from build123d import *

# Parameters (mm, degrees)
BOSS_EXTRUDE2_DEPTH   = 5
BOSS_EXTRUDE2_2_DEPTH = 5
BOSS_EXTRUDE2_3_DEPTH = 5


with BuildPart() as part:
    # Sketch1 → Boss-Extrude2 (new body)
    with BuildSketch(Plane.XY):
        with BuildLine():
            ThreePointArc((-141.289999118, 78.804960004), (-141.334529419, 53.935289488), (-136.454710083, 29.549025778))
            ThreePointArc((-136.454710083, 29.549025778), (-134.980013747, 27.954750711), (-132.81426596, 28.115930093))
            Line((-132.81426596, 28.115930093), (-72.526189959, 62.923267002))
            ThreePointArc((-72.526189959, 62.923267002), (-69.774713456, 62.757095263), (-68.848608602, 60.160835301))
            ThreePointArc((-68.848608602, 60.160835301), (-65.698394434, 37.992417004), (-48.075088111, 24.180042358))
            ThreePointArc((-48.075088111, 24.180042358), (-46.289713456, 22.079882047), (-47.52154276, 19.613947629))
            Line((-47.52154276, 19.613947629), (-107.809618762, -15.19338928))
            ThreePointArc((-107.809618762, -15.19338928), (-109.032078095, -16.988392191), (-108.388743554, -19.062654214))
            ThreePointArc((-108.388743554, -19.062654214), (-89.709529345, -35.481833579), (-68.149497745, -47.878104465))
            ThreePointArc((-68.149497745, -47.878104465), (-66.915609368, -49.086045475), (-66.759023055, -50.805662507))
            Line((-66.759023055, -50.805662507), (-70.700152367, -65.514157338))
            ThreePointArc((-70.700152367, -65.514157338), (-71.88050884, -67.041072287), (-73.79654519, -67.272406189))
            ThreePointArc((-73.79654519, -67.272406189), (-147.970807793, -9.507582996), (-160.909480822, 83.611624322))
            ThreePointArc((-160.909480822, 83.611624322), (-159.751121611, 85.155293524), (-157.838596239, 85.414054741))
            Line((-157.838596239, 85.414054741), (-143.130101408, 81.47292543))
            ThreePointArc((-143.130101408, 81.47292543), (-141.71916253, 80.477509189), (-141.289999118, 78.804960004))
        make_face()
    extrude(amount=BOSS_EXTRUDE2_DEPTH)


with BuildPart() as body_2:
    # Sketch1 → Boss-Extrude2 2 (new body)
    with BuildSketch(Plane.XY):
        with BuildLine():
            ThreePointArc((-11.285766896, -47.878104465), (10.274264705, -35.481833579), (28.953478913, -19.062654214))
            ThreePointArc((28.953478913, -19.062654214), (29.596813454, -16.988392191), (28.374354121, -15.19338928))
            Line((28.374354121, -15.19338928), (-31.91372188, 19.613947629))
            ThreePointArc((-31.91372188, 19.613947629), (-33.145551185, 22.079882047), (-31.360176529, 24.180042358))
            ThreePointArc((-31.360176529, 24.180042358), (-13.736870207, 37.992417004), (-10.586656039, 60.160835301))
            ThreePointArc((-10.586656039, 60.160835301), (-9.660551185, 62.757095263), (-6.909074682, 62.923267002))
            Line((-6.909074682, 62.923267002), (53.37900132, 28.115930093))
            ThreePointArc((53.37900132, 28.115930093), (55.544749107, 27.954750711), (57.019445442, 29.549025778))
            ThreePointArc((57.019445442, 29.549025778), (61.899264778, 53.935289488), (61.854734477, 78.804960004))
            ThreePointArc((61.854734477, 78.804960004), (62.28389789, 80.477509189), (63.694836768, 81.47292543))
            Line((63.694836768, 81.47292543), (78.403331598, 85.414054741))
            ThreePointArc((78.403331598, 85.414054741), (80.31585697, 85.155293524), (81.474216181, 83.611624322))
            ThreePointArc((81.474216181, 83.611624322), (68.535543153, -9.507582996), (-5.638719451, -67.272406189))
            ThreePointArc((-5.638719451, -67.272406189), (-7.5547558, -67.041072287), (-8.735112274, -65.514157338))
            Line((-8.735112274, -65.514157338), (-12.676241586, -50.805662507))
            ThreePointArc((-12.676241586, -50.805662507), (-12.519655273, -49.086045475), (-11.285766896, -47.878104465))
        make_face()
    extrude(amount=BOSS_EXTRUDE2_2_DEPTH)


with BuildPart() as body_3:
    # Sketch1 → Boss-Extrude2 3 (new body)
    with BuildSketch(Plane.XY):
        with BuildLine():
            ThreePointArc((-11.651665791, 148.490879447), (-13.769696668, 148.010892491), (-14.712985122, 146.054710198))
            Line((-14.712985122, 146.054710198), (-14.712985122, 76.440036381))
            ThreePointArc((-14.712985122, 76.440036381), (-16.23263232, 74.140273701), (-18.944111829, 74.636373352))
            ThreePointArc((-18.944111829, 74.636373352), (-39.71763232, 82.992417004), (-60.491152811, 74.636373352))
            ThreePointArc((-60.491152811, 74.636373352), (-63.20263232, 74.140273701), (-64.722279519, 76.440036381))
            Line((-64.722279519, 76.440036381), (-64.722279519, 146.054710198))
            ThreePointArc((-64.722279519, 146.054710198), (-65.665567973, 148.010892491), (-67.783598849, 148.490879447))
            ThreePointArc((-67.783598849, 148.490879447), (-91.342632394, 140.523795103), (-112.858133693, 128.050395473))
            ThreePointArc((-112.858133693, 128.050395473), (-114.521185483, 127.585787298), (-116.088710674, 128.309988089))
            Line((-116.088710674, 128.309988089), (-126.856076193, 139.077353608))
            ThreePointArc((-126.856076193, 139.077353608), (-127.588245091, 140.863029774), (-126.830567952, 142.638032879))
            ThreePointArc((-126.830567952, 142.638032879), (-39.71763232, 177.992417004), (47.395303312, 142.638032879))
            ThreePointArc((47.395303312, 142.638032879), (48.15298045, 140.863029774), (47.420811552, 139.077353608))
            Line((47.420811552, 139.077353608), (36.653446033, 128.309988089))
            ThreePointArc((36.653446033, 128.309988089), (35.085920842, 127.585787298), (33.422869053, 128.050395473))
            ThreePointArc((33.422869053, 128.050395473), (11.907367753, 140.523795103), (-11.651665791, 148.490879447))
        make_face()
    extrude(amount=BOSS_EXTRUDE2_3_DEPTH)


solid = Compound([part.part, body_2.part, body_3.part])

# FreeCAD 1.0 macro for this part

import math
import FreeCAD as App
import Part
import Sketcher
from FreeCAD import Vector
Q = App.Units.Quantity

doc = App.newDocument("Part")
body = doc.addObject("PartDesign::Body", "Body")

sketch1 = body.newObject("Sketcher::SketchObject", "Sketch")
sketch1.AttachmentSupport = (doc.getObject("XY_Plane"), [""])
sketch1.MapMode = "FlatFace"
sketch1.addGeometry([
    Part.ArcOfCircle(Part.Circle(Vector(-16.932504, 66.147417, 0), Vector(0, 0, 1), 125), math.radians(174.188249), math.radians(197.024891)),
    Part.ArcOfCircle(Part.Circle(Vector(-143.777149, 79.058111, 0), Vector(0, 0, 1), 2.5), math.radians(-5.811751), math.radians(75)),
    Part.LineSegment(Vector(-143.130101, 81.472925, 0), Vector(-157.838596, 85.414055, 0)),
    Part.ArcOfCircle(Part.Circle(Vector(-158.485644, 82.99924, 0), Vector(0, 0, 1), 2.5), math.radians(75), math.radians(165.820905)),
    Part.ArcOfCircle(Part.Circle(Vector(-39.717632, 52.992417, 0), Vector(0, 0, 1), 125), math.radians(165.820905), math.radians(254.179095)),
    Part.ArcOfCircle(Part.Circle(Vector(-73.114967, -64.86711, 0), Vector(0, 0, 1), 2.5), math.radians(-105.820905), math.radians(-15)),
    Part.LineSegment(Vector(-70.700152, -65.514157, 0), Vector(-66.759023, -50.805663, 0)),
    Part.ArcOfCircle(Part.Circle(Vector(-69.173838, -50.158615, 0), Vector(0, 0, 1), 2.5), math.radians(-15), math.radians(65.811751)),
    Part.ArcOfCircle(Part.Circle(Vector(-16.932504, 66.147417, 0), Vector(0, 0, 1), 125), math.radians(-137.024891), math.radians(-114.188249)),
    Part.ArcOfCircle(Part.Circle(Vector(-106.559619, -17.358453, 0), Vector(0, 0, 1), 2.5), math.radians(120), math.radians(222.975109)),
    Part.LineSegment(Vector(-107.809619, -15.193389, 0), Vector(-47.521543, 19.613948, 0)),
    Part.ArcOfCircle(Part.Circle(Vector(-48.771543, 21.779011, 0), Vector(0, 0, 1), 2.5), math.radians(-60), math.radians(73.824416)),
    Part.ArcOfCircle(Part.Circle(Vector(-39.717632, 52.992417, 0), Vector(0, 0, 1), 30), math.radians(166.175584), math.radians(253.824416)),
    Part.ArcOfCircle(Part.Circle(Vector(-71.27619, 60.758203, 0), Vector(0, 0, 1), 2.5), math.radians(-13.824416), math.radians(120)),
    Part.LineSegment(Vector(-72.52619, 62.923267, 0), Vector(-132.814266, 28.11593, 0)),
    Part.ArcOfCircle(Part.Circle(Vector(-134.064266, 30.280994, 0), Vector(0, 0, 1), 2.5), math.radians(-162.975109), math.radians(-60)),
], False)
sketch1.addConstraint([
    Sketcher.Constraint("Tangent", 0, 1, 1, 1),
    Sketcher.Constraint("Tangent", 1, 2, 2, 1),
    Sketcher.Constraint("Tangent", 2, 2, 3, 1),
    Sketcher.Constraint("Tangent", 3, 2, 4, 1),
    Sketcher.Constraint("Tangent", 4, 2, 5, 1),
    Sketcher.Constraint("Tangent", 5, 2, 6, 1),
    Sketcher.Constraint("Tangent", 6, 2, 7, 1),
    Sketcher.Constraint("Tangent", 7, 2, 8, 2),
    Sketcher.Constraint("Tangent", 8, 1, 9, 2),
    Sketcher.Constraint("Tangent", 9, 1, 10, 1),
    Sketcher.Constraint("Tangent", 10, 2, 11, 1),
    Sketcher.Constraint("Tangent", 11, 2, 12, 2),
    Sketcher.Constraint("Tangent", 12, 1, 13, 1),
    Sketcher.Constraint("Tangent", 13, 2, 14, 1),
    Sketcher.Constraint("Tangent", 14, 2, 15, 2),
    Sketcher.Constraint("Tangent", 15, 1, 0, 2),
    Sketcher.Constraint("Coincident", 8, 3, 0, 3),
    Sketcher.Constraint("Coincident", 12, 3, 4, 3),
    Sketcher.Constraint("Equal", 1, 3),
    Sketcher.Constraint("Equal", 0, 4),
    Sketcher.Constraint("Equal", 3, 5),
    Sketcher.Constraint("Equal", 5, 7),
    Sketcher.Constraint("Equal", 4, 8),
    Sketcher.Constraint("Equal", 7, 9),
    Sketcher.Constraint("Equal", 9, 11),
    Sketcher.Constraint("Equal", 11, 13),
    Sketcher.Constraint("Equal", 13, 15),
    Sketcher.Constraint("Perpendicular", 2, 6),
    Sketcher.Constraint("Parallel", 10, 14),
    Sketcher.Constraint("Equal", 2, 6),
    Sketcher.Constraint("Equal", 10, 14),
    Sketcher.Constraint("Radius", 0, 125.0),
    Sketcher.Constraint("Radius", 12, 30.0),
    Sketcher.Constraint("Radius", 1, 2.5),
    Sketcher.Constraint("Angle", 2, Q("165 deg")),
    Sketcher.Constraint("Angle", 10, Q("30 deg")),
    Sketcher.Constraint("DistanceX", 0, 1, -1, 1, 141.289999),
    Sketcher.Constraint("DistanceY", 4, 3, 0, 3, 13.155),
    Sketcher.Constraint("DistanceY", 1, 2, 3, 2, 2.138699),
    Sketcher.Constraint("DistanceY", 4, 2, 15, 3, 97.5534),
    Sketcher.Constraint("DistanceX", 13, 3, 11, 2, 23.201102),
    Sketcher.Constraint("DistanceY", -1, 1, 1, 3, 79.058111),
])
pad1 = body.newObject("PartDesign::Pad", "Pad")
pad1.Profile = sketch1
pad1.Length = 5
body2 = doc.addObject("PartDesign::Body", "Body001")

sketch2 = body2.newObject("Sketcher::SketchObject", "Sketch001")
sketch2.AttachmentSupport = (doc.getObject("XY_Plane001"), [""])
sketch2.MapMode = "FlatFace"
sketch2.addGeometry([
    Part.ArcOfCircle(Part.Circle(Vector(-62.502761, 66.147417, 0), Vector(0, 0, 1), 125), math.radians(-65.811751), math.radians(-42.975109)),
    Part.ArcOfCircle(Part.Circle(Vector(-10.261427, -50.158615, 0), Vector(0, 0, 1), 2.5), math.radians(114.188249), math.radians(195)),
    Part.LineSegment(Vector(-12.676242, -50.805663, 0), Vector(-8.735112, -65.514157, 0)),
    Part.ArcOfCircle(Part.Circle(Vector(-6.320298, -64.86711, 0), Vector(0, 0, 1), 2.5), math.radians(-165), math.radians(-74.179095)),
    Part.ArcOfCircle(Part.Circle(Vector(-39.717632, 52.992417, 0), Vector(0, 0, 1), 125), math.radians(-74.179095), math.radians(14.179095)),
    Part.ArcOfCircle(Part.Circle(Vector(79.050379, 82.99924, 0), Vector(0, 0, 1), 2.5), math.radians(14.179095), math.radians(105)),
    Part.LineSegment(Vector(78.403332, 85.414055, 0), Vector(63.694837, 81.472925, 0)),
    Part.ArcOfCircle(Part.Circle(Vector(64.341884, 79.058111, 0), Vector(0, 0, 1), 2.5), math.radians(105), math.radians(185.811751)),
    Part.ArcOfCircle(Part.Circle(Vector(-62.502761, 66.147417, 0), Vector(0, 0, 1), 125), math.radians(-17.024891), math.radians(5.811751)),
    Part.ArcOfCircle(Part.Circle(Vector(54.629001, 30.280994, 0), Vector(0, 0, 1), 2.5), math.radians(-120), math.radians(-17.024891)),
    Part.LineSegment(Vector(53.379001, 28.11593, 0), Vector(-6.909075, 62.923267, 0)),
    Part.ArcOfCircle(Part.Circle(Vector(-8.159075, 60.758203, 0), Vector(0, 0, 1), 2.5), math.radians(60), math.radians(193.824416)),
    Part.ArcOfCircle(Part.Circle(Vector(-39.717632, 52.992417, 0), Vector(0, 0, 1), 30), math.radians(-73.824416), math.radians(13.824416)),
    Part.ArcOfCircle(Part.Circle(Vector(-30.663722, 21.779011, 0), Vector(0, 0, 1), 2.5), math.radians(106.175584), math.radians(240)),
    Part.LineSegment(Vector(-31.913722, 19.613948, 0), Vector(28.374354, -15.193389, 0)),
    Part.ArcOfCircle(Part.Circle(Vector(27.124354, -17.358453, 0), Vector(0, 0, 1), 2.5), math.radians(-42.975109), math.radians(60)),
], False)
sketch2.addConstraint([
    Sketcher.Constraint("Tangent", 0, 1, 1, 1),
    Sketcher.Constraint("Tangent", 1, 2, 2, 1),
    Sketcher.Constraint("Tangent", 2, 2, 3, 1),
    Sketcher.Constraint("Tangent", 3, 2, 4, 1),
    Sketcher.Constraint("Tangent", 4, 2, 5, 1),
    Sketcher.Constraint("Tangent", 5, 2, 6, 1),
    Sketcher.Constraint("Tangent", 6, 2, 7, 1),
    Sketcher.Constraint("Tangent", 7, 2, 8, 2),
    Sketcher.Constraint("Tangent", 8, 1, 9, 2),
    Sketcher.Constraint("Tangent", 9, 1, 10, 1),
    Sketcher.Constraint("Tangent", 10, 2, 11, 1),
    Sketcher.Constraint("Tangent", 11, 2, 12, 2),
    Sketcher.Constraint("Tangent", 12, 1, 13, 1),
    Sketcher.Constraint("Tangent", 13, 2, 14, 1),
    Sketcher.Constraint("Tangent", 14, 2, 15, 2),
    Sketcher.Constraint("Tangent", 15, 1, 0, 2),
    Sketcher.Constraint("Coincident", 8, 3, 0, 3),
    Sketcher.Constraint("Coincident", 12, 3, 4, 3),
    Sketcher.Constraint("Equal", 1, 3),
    Sketcher.Constraint("Equal", 0, 4),
    Sketcher.Constraint("Equal", 3, 5),
    Sketcher.Constraint("Equal", 5, 7),
    Sketcher.Constraint("Equal", 4, 8),
    Sketcher.Constraint("Equal", 7, 9),
    Sketcher.Constraint("Equal", 9, 11),
    Sketcher.Constraint("Equal", 11, 13),
    Sketcher.Constraint("Equal", 13, 15),
    Sketcher.Constraint("Perpendicular", 2, 6),
    Sketcher.Constraint("Parallel", 10, 14),
    Sketcher.Constraint("Equal", 2, 6),
    Sketcher.Constraint("Equal", 10, 14),
    Sketcher.Constraint("Radius", 0, 125.0),
    Sketcher.Constraint("Radius", 12, 30.0),
    Sketcher.Constraint("Radius", 1, 2.5),
    Sketcher.Constraint("Angle", 2, Q("-75 deg")),
    Sketcher.Constraint("Angle", 10, Q("150 deg")),
    Sketcher.Constraint("DistanceX", -1, 1, 9, 3, 54.629001),
    Sketcher.Constraint("DistanceY", 4, 3, 0, 3, 13.155),
    Sketcher.Constraint("DistanceX", 3, 3, 9, 3, 60.949299),
    Sketcher.Constraint("DistanceY", 0, 1, 9, 3, 78.159098),
    Sketcher.Constraint("DistanceY", 8, 1, 6, 2, 51.9239),
    Sketcher.Constraint("DistanceY", 3, 3, -1, 1, 64.86711),
])
pad2 = body2.newObject("PartDesign::Pad", "Pad001")
pad2.Profile = sketch2
pad2.Length = 5
body3 = doc.addObject("PartDesign::Body", "Body002")

sketch3 = body3.newObject("Sketcher::SketchObject", "Sketch002")
sketch3.AttachmentSupport = (doc.getObject("XY_Plane002"), [""])
sketch3.MapMode = "FlatFace"
sketch3.addGeometry([
    Part.ArcOfCircle(Part.Circle(Vector(-12.212985, 146.05471, 0), Vector(0, 0, 1), 2.5), math.radians(77.024891), math.radians(180)),
    Part.ArcOfCircle(Part.Circle(Vector(-39.717632, 26.682417, 0), Vector(0, 0, 1), 125), math.radians(54.188249), math.radians(77.024891)),
    Part.ArcOfCircle(Part.Circle(Vector(34.885679, 130.077755, 0), Vector(0, 0, 1), 2.5), math.radians(-125.811751), math.radians(-45)),
    Part.LineSegment(Vector(36.653446, 128.309988, 0), Vector(47.420812, 139.077354, 0)),
    Part.ArcOfCircle(Part.Circle(Vector(45.653045, 140.845121, 0), Vector(0, 0, 1), 2.5), math.radians(-45), math.radians(45.820905)),
    Part.ArcOfCircle(Part.Circle(Vector(-39.717632, 52.992417, 0), Vector(0, 0, 1), 125), math.radians(45.820905), math.radians(134.179095)),
    Part.ArcOfCircle(Part.Circle(Vector(-125.088309, 140.845121, 0), Vector(0, 0, 1), 2.5), math.radians(134.179095), math.radians(225)),
    Part.LineSegment(Vector(-126.856076, 139.077354, 0), Vector(-116.088711, 128.309988, 0)),
    Part.ArcOfCircle(Part.Circle(Vector(-114.320944, 130.077755, 0), Vector(0, 0, 1), 2.5), math.radians(-135), math.radians(-54.188249)),
    Part.ArcOfCircle(Part.Circle(Vector(-39.717632, 26.682417, 0), Vector(0, 0, 1), 125), math.radians(102.975109), math.radians(125.811751)),
    Part.ArcOfCircle(Part.Circle(Vector(-67.22228, 146.05471, 0), Vector(0, 0, 1), 2.5), math.radians(0), math.radians(102.975109)),
    Part.LineSegment(Vector(-64.72228, 146.05471, 0), Vector(-64.72228, 76.440036, 0)),
    Part.ArcOfCircle(Part.Circle(Vector(-62.22228, 76.440036, 0), Vector(0, 0, 1), 2.5), math.radians(-180), math.radians(-46.175584)),
    Part.ArcOfCircle(Part.Circle(Vector(-39.717632, 52.992417, 0), Vector(0, 0, 1), 30), math.radians(46.175584), math.radians(133.824416)),
    Part.ArcOfCircle(Part.Circle(Vector(-17.212985, 76.440036, 0), Vector(0, 0, 1), 2.5), math.radians(-133.824416), math.radians(0)),
    Part.LineSegment(Vector(-14.712985, 76.440036, 0), Vector(-14.712985, 146.05471, 0)),
], False)
sketch3.addConstraint([
    Sketcher.Constraint("Tangent", 0, 1, 1, 2),
    Sketcher.Constraint("Tangent", 1, 1, 2, 1),
    Sketcher.Constraint("Tangent", 2, 2, 3, 1),
    Sketcher.Constraint("Tangent", 3, 2, 4, 1),
    Sketcher.Constraint("Tangent", 4, 2, 5, 1),
    Sketcher.Constraint("Tangent", 5, 2, 6, 1),
    Sketcher.Constraint("Tangent", 6, 2, 7, 1),
    Sketcher.Constraint("Tangent", 7, 2, 8, 1),
    Sketcher.Constraint("Tangent", 8, 2, 9, 2),
    Sketcher.Constraint("Tangent", 9, 1, 10, 2),
    Sketcher.Constraint("Tangent", 10, 1, 11, 1),
    Sketcher.Constraint("Tangent", 11, 2, 12, 1),
    Sketcher.Constraint("Tangent", 12, 2, 13, 2),
    Sketcher.Constraint("Tangent", 13, 1, 14, 1),
    Sketcher.Constraint("Tangent", 14, 2, 15, 1),
    Sketcher.Constraint("Tangent", 15, 2, 0, 2),
    Sketcher.Constraint("Vertical", 11),
    Sketcher.Constraint("Vertical", 15),
    Sketcher.Constraint("Coincident", 9, 3, 1, 3),
    Sketcher.Constraint("Coincident", 13, 3, 5, 3),
    Sketcher.Constraint("Equal", 0, 2),
    Sketcher.Constraint("Equal", 2, 4),
    Sketcher.Constraint("Equal", 1, 5),
    Sketcher.Constraint("Equal", 4, 6),
    Sketcher.Constraint("Equal", 6, 8),
    Sketcher.Constraint("Equal", 5, 9),
    Sketcher.Constraint("Equal", 8, 10),
    Sketcher.Constraint("Equal", 10, 12),
    Sketcher.Constraint("Equal", 12, 14),
    Sketcher.Constraint("Perpendicular", 3, 7),
    Sketcher.Constraint("Horizontal", 4, 3, 6, 3),
    Sketcher.Constraint("Horizontal", 2, 3, 8, 3),
    Sketcher.Constraint("Horizontal", 0, 3, 10, 3),
    Sketcher.Constraint("Horizontal", 12, 3, 14, 3),
    Sketcher.Constraint("Radius", 1, 125.0),
    Sketcher.Constraint("Radius", 13, 30.0),
    Sketcher.Constraint("Radius", 0, 2.5),
    Sketcher.Constraint("DistanceY", 1, 3, 5, 3, 26.31),
    Sketcher.Constraint("DistanceX", 9, 1, -1, 1, 67.783599),
    Sketcher.Constraint("DistanceX", 2, 2, 4, 3, 8.999599),
    Sketcher.Constraint("DistanceY", 11, 2, 11, 1, 69.614674),
    Sketcher.Constraint("DistanceY", -1, 1, 0, 3, 146.05471),
])
pad3 = body3.newObject("PartDesign::Pad", "Pad002")
pad3.Profile = sketch3
pad3.Length = 5

doc.recompute()
